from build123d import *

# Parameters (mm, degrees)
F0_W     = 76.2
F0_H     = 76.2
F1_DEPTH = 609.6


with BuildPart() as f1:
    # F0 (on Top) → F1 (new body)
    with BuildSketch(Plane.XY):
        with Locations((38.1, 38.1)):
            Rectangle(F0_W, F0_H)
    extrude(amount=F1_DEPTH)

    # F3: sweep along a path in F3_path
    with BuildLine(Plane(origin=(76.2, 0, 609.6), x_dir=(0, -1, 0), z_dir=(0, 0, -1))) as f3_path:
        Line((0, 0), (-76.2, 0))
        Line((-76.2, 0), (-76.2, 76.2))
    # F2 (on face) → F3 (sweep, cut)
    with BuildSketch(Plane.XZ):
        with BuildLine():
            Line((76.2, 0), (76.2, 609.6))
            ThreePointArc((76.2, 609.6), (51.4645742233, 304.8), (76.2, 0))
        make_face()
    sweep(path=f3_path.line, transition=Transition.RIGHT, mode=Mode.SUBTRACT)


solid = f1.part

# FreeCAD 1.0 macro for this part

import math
import FreeCAD as App
import Part
import Sketcher

V = App.Vector
Q = App.Units.Quantity


def add_polygon(sketch, points):
    """Adds a closed chain of lines whose ends are joined by coincident constraints."""
    first, n = sketch.GeometryCount, len(points)
    for a, b in zip(points, points[1:] + points[:1]):
        sketch.addGeometry(Part.LineSegment(App.Vector(*a, 0), App.Vector(*b, 0)), False)
    for i in range(n):
        sketch.addConstraint(Sketcher.Constraint("Coincident", first + i, 2, first + (i + 1) % n, 1))

doc = App.newDocument("Part")
body = doc.addObject("PartDesign::Body", "Body")

sketch1 = body.newObject("Sketcher::SketchObject", "Sketch")
sketch1.AttachmentSupport = (doc.getObject("XY_Plane"), [""])
sketch1.MapMode = "FlatFace"
add_polygon(sketch1, [(0, 76), (0, 0), (76, 0), (76, 76)])
sketch1.addConstraint([
    Sketcher.Constraint("Vertical", 0),
    Sketcher.Constraint("Horizontal", 1),
    Sketcher.Constraint("Vertical", 2),
    Sketcher.Constraint("Horizontal", 3),
    Sketcher.Constraint("Coincident", 0, 2, -1, 1),
    Sketcher.Constraint("Equal", 3, 0),
    Sketcher.Constraint("DistanceX", 1, 1, 1, 2, Q("3 in")),
])
pad1 = body.newObject("PartDesign::Pad", "Pad")
pad1.Profile = sketch1
pad1.Length = Q("24 in")

sketch2 = body.newObject("Sketcher::SketchObject", "Sketch001")
sketch2.AttachmentSupport = (doc.getObject("XZ_Plane"), [""])
sketch2.MapMode = "FlatFace"
sketch2.addGeometry([
    Part.LineSegment(V(76, 0, 0), V(76, 610, 0)),
    Part.ArcOfCircle(Part.Circle(V(1942, 305, 0), V(0, 0, 1), 1890), math.radians(170.72), math.radians(189.28)),
], False)
sketch2.addConstraint([
    Sketcher.Constraint("Coincident", 0, 1, 1, 2),
    Sketcher.Constraint("Coincident", 1, 1, 0, 2),
    Sketcher.Constraint("Vertical", 0),
    Sketcher.Constraint("PointOnObject", 0, 1, -1),
    Sketcher.Constraint("DistanceY", 0, 1, 0, 2, Q("24 in")),
    Sketcher.Constraint("DistanceX", -1, 1, 0, 1, Q("3 in")),
    Sketcher.Constraint("Radius", 1, 1890.30264),
])

sketch3 = body.newObject("Sketcher::SketchObject", "Sketch002")
sketch3.AttachmentSupport = (doc.getObject("XY_Plane"), [""])
sketch3.MapMode = "FlatFace"
sketch3.AttachmentOffset = App.Placement(V(0, 0, 24 * 25.4), App.Rotation())
sketch3.addGeometry([
    Part.LineSegment(V(76, 0, 0), V(76, 76, 0)),
    Part.LineSegment(V(76, 76, 0), V(0, 76, 0)),
], False)
sketch3.addConstraint([
    Sketcher.Constraint("Coincident", 0, 2, 1, 1),
    Sketcher.Constraint("Vertical", 0),
    Sketcher.Constraint("Horizontal", 1),
    Sketcher.Constraint("PointOnObject", 0, 1, -1),
    Sketcher.Constraint("PointOnObject", 1, 2, -2),
    Sketcher.Constraint("Equal", 1, 0),
    Sketcher.Constraint("DistanceX", 1, 2, 1, 1, Q("3 in")),
])
doc.recompute()

subtractivepipe = body.newObject("PartDesign::SubtractivePipe", "SubtractivePipe")
subtractivepipe.Profile = sketch2
subtractivepipe.Spine = (sketch3, ["Edge1", "Edge2"])
subtractivepipe.Transition = "Right corner"

doc.recompute()
